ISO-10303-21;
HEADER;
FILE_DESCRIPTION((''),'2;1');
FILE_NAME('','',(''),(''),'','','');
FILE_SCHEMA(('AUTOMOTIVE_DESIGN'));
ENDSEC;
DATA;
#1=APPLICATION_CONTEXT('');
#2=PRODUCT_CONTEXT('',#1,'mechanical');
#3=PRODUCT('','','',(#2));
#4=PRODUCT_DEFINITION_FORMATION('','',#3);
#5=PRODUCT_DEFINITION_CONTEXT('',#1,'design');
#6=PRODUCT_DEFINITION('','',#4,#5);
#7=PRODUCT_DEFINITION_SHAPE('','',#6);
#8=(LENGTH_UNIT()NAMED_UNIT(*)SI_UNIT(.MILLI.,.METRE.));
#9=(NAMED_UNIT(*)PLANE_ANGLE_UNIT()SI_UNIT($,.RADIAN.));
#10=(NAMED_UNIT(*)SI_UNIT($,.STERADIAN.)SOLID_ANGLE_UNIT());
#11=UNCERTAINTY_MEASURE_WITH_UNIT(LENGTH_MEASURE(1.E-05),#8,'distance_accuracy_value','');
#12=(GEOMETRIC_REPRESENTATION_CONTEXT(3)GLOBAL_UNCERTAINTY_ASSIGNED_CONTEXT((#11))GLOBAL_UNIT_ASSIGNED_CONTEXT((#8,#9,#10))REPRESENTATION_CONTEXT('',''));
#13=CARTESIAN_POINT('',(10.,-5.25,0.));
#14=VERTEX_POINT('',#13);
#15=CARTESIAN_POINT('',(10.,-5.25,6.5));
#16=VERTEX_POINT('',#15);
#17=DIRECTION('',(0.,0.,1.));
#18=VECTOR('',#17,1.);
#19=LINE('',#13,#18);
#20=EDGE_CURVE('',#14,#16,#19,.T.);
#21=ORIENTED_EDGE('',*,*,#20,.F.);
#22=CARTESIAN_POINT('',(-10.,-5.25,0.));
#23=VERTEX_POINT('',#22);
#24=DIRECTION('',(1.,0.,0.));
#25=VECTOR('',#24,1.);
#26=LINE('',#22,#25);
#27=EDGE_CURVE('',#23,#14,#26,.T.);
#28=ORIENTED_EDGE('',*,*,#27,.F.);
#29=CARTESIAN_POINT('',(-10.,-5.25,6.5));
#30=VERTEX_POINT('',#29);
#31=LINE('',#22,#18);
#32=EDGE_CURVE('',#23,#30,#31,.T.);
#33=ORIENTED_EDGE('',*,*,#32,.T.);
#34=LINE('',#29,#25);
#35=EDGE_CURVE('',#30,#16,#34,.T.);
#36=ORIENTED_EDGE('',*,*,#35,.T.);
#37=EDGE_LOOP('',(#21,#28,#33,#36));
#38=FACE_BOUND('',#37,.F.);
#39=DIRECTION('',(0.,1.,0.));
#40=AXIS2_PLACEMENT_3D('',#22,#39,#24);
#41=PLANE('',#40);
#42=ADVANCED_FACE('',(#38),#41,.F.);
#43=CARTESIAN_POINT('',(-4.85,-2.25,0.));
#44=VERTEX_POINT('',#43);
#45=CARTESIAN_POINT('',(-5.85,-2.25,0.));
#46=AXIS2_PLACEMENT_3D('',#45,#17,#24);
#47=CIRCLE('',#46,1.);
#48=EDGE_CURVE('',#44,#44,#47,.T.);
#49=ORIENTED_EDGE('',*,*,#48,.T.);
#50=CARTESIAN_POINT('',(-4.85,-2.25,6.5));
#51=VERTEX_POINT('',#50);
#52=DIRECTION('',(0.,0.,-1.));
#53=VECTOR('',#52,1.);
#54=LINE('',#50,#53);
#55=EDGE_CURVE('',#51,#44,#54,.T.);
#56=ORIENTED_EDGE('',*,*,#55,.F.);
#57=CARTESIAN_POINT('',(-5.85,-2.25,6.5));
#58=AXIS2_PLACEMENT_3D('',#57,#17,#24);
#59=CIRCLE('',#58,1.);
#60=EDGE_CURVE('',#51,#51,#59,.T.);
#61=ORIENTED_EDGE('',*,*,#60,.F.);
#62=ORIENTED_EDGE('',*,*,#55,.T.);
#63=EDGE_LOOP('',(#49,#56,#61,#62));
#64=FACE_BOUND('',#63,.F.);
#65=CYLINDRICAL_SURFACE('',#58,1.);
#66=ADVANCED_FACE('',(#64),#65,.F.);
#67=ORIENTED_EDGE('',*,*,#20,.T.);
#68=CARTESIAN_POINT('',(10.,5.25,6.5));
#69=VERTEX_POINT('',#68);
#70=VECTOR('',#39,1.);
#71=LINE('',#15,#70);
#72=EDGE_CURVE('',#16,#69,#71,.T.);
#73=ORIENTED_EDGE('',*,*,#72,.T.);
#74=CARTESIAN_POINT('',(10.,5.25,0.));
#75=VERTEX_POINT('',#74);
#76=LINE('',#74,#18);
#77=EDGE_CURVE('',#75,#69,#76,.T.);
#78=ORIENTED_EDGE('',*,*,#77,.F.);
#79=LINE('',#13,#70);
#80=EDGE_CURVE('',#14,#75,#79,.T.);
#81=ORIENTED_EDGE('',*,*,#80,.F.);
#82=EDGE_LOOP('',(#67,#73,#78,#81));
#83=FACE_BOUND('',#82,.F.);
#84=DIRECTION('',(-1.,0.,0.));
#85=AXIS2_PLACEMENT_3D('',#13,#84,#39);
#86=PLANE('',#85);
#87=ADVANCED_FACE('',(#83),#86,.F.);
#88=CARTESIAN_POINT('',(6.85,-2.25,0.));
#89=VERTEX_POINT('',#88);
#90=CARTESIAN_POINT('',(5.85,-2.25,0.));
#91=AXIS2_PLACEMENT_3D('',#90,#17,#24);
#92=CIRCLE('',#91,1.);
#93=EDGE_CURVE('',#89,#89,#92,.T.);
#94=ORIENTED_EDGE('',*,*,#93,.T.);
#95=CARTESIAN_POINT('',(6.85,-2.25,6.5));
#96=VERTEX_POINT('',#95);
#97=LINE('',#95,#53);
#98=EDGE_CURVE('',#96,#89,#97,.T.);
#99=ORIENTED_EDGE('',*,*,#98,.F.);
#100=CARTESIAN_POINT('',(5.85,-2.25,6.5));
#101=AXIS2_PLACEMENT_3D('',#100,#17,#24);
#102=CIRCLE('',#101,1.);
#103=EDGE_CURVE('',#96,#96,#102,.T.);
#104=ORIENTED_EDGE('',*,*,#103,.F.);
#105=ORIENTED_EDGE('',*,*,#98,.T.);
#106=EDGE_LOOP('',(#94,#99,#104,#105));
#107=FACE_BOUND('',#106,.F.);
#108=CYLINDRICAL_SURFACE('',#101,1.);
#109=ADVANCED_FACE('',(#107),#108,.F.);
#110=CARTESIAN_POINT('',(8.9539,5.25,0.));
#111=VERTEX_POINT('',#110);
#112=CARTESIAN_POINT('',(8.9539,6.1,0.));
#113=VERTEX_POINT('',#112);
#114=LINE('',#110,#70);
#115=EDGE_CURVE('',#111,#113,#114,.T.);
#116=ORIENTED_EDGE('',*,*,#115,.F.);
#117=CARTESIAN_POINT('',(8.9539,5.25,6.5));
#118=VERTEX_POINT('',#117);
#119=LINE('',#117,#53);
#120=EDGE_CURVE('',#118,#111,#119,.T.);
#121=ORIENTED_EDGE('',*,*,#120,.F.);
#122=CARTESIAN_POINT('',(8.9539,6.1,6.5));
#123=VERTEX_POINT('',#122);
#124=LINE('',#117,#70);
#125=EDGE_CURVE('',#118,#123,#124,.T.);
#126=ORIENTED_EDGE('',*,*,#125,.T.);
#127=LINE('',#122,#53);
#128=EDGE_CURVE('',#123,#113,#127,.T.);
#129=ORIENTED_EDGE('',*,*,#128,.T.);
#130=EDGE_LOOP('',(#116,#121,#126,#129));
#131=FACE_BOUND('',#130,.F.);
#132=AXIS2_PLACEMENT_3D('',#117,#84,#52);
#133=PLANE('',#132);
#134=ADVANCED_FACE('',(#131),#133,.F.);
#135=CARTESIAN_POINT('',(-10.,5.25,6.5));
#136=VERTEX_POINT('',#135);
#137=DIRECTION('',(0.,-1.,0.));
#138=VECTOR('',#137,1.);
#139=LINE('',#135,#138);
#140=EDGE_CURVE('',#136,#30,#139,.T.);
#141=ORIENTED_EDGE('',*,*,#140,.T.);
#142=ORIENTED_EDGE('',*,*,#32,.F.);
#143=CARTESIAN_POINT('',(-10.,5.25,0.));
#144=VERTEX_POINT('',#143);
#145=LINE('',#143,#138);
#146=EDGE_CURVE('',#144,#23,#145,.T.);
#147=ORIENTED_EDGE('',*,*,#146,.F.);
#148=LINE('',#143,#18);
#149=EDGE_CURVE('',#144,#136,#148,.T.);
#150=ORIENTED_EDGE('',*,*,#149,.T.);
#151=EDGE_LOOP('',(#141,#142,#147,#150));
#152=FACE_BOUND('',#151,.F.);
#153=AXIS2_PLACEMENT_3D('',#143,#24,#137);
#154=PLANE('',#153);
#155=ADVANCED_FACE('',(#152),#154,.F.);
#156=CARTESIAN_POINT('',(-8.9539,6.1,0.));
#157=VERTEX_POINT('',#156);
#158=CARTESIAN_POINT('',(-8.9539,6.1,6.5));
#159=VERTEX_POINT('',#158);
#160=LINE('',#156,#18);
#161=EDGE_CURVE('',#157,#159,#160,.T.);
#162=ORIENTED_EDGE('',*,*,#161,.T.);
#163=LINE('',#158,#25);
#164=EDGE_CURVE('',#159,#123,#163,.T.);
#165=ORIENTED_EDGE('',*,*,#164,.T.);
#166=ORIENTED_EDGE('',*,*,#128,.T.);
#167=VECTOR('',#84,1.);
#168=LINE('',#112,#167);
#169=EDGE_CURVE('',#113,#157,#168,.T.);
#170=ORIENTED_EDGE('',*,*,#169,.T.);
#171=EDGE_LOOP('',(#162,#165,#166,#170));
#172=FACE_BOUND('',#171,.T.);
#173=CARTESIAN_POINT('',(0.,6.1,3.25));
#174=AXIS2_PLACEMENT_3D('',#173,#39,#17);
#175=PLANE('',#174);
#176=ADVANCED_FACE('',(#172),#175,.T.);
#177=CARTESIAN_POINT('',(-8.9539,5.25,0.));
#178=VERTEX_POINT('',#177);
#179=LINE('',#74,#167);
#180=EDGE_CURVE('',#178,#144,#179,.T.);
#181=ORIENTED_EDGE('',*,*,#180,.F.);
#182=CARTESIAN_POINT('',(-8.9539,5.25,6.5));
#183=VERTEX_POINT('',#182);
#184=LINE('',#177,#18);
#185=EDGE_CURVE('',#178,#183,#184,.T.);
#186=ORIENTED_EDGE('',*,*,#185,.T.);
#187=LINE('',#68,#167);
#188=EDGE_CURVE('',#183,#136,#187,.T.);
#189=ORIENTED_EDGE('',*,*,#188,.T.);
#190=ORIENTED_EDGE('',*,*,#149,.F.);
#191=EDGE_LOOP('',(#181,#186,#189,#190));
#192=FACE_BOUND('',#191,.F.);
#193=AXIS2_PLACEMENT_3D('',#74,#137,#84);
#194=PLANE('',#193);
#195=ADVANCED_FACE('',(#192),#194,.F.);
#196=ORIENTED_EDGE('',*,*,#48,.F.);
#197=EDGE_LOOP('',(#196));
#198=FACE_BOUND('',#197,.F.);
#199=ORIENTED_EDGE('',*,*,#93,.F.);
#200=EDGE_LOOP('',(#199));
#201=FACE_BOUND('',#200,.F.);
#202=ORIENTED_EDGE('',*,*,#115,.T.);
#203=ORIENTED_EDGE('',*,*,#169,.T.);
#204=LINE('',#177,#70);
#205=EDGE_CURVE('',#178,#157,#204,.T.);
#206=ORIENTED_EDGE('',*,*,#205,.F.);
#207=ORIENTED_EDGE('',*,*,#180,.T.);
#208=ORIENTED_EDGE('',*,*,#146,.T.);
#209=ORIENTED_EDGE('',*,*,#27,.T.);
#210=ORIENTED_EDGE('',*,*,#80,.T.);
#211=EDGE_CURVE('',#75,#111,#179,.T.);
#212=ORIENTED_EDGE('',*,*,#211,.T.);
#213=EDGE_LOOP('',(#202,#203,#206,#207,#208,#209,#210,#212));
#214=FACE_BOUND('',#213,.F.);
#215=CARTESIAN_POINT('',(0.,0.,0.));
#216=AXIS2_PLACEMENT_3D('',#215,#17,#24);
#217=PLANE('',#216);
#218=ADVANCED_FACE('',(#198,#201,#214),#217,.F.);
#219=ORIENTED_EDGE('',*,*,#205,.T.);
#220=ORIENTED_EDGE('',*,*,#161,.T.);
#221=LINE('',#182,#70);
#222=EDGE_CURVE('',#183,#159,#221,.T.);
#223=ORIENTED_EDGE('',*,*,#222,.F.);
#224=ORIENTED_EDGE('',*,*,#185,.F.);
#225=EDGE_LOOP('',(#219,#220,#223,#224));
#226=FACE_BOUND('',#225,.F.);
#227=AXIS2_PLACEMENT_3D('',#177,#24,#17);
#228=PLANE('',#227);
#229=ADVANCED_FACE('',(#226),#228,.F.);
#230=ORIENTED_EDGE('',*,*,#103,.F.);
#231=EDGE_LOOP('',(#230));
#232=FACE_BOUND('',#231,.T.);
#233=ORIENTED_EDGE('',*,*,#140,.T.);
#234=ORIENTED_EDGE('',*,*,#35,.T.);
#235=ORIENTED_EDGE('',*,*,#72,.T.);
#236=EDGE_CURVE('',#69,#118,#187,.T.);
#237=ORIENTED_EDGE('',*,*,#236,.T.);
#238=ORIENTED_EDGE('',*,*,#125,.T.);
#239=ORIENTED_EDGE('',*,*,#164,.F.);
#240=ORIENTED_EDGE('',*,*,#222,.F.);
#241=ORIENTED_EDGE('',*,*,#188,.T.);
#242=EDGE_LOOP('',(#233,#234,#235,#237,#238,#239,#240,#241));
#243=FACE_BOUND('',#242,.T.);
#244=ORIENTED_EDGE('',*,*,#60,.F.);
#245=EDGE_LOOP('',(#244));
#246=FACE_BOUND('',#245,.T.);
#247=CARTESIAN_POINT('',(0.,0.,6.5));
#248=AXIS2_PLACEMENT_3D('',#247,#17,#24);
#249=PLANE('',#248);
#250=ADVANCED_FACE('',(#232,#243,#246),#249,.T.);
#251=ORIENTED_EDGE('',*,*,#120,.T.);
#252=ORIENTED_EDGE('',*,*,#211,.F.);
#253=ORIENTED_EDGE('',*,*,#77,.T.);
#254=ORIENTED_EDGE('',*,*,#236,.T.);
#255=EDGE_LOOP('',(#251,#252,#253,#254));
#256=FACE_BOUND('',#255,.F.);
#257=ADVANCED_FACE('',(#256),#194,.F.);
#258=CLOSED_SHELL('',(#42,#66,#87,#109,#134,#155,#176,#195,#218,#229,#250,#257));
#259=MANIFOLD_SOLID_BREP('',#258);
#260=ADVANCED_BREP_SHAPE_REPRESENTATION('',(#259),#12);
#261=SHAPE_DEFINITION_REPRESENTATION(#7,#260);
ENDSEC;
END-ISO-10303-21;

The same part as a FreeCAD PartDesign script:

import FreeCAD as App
import Part
import Sketcher
from FreeCAD import Vector

doc = App.newDocument("Part")
params = doc.addObject("Spreadsheet::Sheet", "Params")
for row, (alias, value) in enumerate([
    ("sketch1_height", "10.5 mm"),
    ("pad1_length", "6.5 mm"),
    ("sketch2_diameter", "2 mm"),
    ("pocket1_length", "40.1808 mm"),
    ("sketch3_height", "6.5 mm"),
    ("pad2_length", "0.85 mm"),
], start=1):
    params.set(f"A{row}", alias)
    params.set(f"B{row}", "=" + value)
    params.setAlias(f"B{row}", alias)

body = doc.addObject("PartDesign::Body", "Body")

sketch1 = body.newObject("Sketcher::SketchObject", "Sketch")
sketch1.AttachmentSupport = (doc.getObject("XY_Plane"), [""])
sketch1.MapMode = "FlatFace"
sketch1.addGeometry(Part.LineSegment(Vector(-10, 5, 0), Vector(-10, -5, 0)), False)
sketch1.addGeometry(Part.LineSegment(Vector(-10, -5, 0), Vector(10, -5, 0)), False)
sketch1.addGeometry(Part.LineSegment(Vector(10, -5, 0), Vector(10, 5, 0)), False)
sketch1.addGeometry(Part.LineSegment(Vector(10, 5, 0), Vector(-10, 5, 0)), False)
sketch1.addConstraint(Sketcher.Constraint("Coincident", 0, 2, 1, 1))
sketch1.addConstraint(Sketcher.Constraint("Coincident", 1, 2, 2, 1))
sketch1.addConstraint(Sketcher.Constraint("Coincident", 2, 2, 3, 1))
sketch1.addConstraint(Sketcher.Constraint("Coincident", 3, 2, 0, 1))
sketch1.addConstraint(Sketcher.Constraint("Vertical", 0))
sketch1.addConstraint(Sketcher.Constraint("Horizontal", 1))
sketch1.addConstraint(Sketcher.Constraint("Vertical", 2))
sketch1.addConstraint(Sketcher.Constraint("Horizontal", 3))
sketch1.addConstraint(Sketcher.Constraint("Symmetric", 0, 2, 2, 2, -1, 1))
sketch1.addConstraint(Sketcher.Constraint("DistanceX", 0, 2, -1, 1, 10.0))
sketch1.addConstraint(Sketcher.Constraint("DistanceY", 0, 2, 0, 1, 10.5))
sketch1.setExpression("Constraints[10]", "Params.sketch1_height")
pad1 = body.newObject("PartDesign::Pad", "Pad")
pad1.Profile = sketch1
pad1.setExpression("Length", "Params.pad1_length")

sketch2 = body.newObject("Sketcher::SketchObject", "Sketch001")
sketch2.AttachmentSupport = (doc.getObject("XY_Plane"), [""])
sketch2.MapMode = "FlatFace"
sketch2.AttachmentOffset = App.Placement(Vector(0, 0, 6.5), App.Rotation())
sketch2.addGeometry(Part.Circle(Vector(5.8, -2.2, 0), Vector(0, 0, 1), 1), False)
sketch2.addGeometry(Part.Circle(Vector(-5.8, -2.2, 0), Vector(0, 0, 1), 1), False)
sketch2.addConstraint(Sketcher.Constraint("Equal", 0, 1))
sketch2.addConstraint(Sketcher.Constraint("Symmetric", 0, 3, 1, 3, -2))
sketch2.addConstraint(Sketcher.Constraint("Diameter", 0, 2.0))
sketch2.addConstraint(Sketcher.Constraint("DistanceX", -1, 1, 0, 3, 5.85))
sketch2.addConstraint(Sketcher.Constraint("DistanceY", 0, 3, -1, 1, 2.25))
sketch2.setExpression("Constraints[2]", "Params.sketch2_diameter")
pocket1 = body.newObject("PartDesign::Pocket", "Pocket")
pocket1.Profile = sketch2
pocket1.setExpression("Length", "Params.pocket1_length")

sketch3 = body.newObject("Sketcher::SketchObject", "Sketch002")
sketch3.AttachmentSupport = (doc.getObject("XZ_Plane"), [""])
sketch3.MapMode = "FlatFace"
sketch3.AttachmentOffset = App.Placement(Vector(0, 0, -5.25), App.Rotation())
sketch3.addGeometry(Part.LineSegment(Vector(9, 0, 0), Vector(-9, 0, 0)), False)
sketch3.addGeometry(Part.LineSegment(Vector(-9, 0, 0), Vector(-9, 6, 0)), False)
sketch3.addGeometry(Part.LineSegment(Vector(-9, 6, 0), Vector(9, 6, 0)), False)
sketch3.addGeometry(Part.LineSegment(Vector(9, 6, 0), Vector(9, 0, 0)), False)
sketch3.addConstraint(Sketcher.Constraint("Coincident", 0, 2, 1, 1))
sketch3.addConstraint(Sketcher.Constraint("Coincident", 1, 2, 2, 1))
sketch3.addConstraint(Sketcher.Constraint("Coincident", 2, 2, 3, 1))
sketch3.addConstraint(Sketcher.Constraint("Coincident", 3, 2, 0, 1))
sketch3.addConstraint(Sketcher.Constraint("Horizontal", 0))
sketch3.addConstraint(Sketcher.Constraint("Vertical", 1))
sketch3.addConstraint(Sketcher.Constraint("Horizontal", 2))
sketch3.addConstraint(Sketcher.Constraint("Vertical", 3))
sketch3.addConstraint(Sketcher.Constraint("Symmetric", 0, 2, 3, 2, -1, 1))
sketch3.addConstraint(Sketcher.Constraint("DistanceY", 1, 1, 1, 2, 6.5))
sketch3.addConstraint(Sketcher.Constraint("DistanceX", 0, 2, 0, 1, 17.9078))
sketch3.setExpression("Constraints[9]", "Params.sketch3_height")
pad2 = body.newObject("PartDesign::Pad", "Pad001")
pad2.Profile = sketch3
pad2.setExpression("Length", "Params.pad2_length")
pad2.Reversed = True

doc.recompute()
